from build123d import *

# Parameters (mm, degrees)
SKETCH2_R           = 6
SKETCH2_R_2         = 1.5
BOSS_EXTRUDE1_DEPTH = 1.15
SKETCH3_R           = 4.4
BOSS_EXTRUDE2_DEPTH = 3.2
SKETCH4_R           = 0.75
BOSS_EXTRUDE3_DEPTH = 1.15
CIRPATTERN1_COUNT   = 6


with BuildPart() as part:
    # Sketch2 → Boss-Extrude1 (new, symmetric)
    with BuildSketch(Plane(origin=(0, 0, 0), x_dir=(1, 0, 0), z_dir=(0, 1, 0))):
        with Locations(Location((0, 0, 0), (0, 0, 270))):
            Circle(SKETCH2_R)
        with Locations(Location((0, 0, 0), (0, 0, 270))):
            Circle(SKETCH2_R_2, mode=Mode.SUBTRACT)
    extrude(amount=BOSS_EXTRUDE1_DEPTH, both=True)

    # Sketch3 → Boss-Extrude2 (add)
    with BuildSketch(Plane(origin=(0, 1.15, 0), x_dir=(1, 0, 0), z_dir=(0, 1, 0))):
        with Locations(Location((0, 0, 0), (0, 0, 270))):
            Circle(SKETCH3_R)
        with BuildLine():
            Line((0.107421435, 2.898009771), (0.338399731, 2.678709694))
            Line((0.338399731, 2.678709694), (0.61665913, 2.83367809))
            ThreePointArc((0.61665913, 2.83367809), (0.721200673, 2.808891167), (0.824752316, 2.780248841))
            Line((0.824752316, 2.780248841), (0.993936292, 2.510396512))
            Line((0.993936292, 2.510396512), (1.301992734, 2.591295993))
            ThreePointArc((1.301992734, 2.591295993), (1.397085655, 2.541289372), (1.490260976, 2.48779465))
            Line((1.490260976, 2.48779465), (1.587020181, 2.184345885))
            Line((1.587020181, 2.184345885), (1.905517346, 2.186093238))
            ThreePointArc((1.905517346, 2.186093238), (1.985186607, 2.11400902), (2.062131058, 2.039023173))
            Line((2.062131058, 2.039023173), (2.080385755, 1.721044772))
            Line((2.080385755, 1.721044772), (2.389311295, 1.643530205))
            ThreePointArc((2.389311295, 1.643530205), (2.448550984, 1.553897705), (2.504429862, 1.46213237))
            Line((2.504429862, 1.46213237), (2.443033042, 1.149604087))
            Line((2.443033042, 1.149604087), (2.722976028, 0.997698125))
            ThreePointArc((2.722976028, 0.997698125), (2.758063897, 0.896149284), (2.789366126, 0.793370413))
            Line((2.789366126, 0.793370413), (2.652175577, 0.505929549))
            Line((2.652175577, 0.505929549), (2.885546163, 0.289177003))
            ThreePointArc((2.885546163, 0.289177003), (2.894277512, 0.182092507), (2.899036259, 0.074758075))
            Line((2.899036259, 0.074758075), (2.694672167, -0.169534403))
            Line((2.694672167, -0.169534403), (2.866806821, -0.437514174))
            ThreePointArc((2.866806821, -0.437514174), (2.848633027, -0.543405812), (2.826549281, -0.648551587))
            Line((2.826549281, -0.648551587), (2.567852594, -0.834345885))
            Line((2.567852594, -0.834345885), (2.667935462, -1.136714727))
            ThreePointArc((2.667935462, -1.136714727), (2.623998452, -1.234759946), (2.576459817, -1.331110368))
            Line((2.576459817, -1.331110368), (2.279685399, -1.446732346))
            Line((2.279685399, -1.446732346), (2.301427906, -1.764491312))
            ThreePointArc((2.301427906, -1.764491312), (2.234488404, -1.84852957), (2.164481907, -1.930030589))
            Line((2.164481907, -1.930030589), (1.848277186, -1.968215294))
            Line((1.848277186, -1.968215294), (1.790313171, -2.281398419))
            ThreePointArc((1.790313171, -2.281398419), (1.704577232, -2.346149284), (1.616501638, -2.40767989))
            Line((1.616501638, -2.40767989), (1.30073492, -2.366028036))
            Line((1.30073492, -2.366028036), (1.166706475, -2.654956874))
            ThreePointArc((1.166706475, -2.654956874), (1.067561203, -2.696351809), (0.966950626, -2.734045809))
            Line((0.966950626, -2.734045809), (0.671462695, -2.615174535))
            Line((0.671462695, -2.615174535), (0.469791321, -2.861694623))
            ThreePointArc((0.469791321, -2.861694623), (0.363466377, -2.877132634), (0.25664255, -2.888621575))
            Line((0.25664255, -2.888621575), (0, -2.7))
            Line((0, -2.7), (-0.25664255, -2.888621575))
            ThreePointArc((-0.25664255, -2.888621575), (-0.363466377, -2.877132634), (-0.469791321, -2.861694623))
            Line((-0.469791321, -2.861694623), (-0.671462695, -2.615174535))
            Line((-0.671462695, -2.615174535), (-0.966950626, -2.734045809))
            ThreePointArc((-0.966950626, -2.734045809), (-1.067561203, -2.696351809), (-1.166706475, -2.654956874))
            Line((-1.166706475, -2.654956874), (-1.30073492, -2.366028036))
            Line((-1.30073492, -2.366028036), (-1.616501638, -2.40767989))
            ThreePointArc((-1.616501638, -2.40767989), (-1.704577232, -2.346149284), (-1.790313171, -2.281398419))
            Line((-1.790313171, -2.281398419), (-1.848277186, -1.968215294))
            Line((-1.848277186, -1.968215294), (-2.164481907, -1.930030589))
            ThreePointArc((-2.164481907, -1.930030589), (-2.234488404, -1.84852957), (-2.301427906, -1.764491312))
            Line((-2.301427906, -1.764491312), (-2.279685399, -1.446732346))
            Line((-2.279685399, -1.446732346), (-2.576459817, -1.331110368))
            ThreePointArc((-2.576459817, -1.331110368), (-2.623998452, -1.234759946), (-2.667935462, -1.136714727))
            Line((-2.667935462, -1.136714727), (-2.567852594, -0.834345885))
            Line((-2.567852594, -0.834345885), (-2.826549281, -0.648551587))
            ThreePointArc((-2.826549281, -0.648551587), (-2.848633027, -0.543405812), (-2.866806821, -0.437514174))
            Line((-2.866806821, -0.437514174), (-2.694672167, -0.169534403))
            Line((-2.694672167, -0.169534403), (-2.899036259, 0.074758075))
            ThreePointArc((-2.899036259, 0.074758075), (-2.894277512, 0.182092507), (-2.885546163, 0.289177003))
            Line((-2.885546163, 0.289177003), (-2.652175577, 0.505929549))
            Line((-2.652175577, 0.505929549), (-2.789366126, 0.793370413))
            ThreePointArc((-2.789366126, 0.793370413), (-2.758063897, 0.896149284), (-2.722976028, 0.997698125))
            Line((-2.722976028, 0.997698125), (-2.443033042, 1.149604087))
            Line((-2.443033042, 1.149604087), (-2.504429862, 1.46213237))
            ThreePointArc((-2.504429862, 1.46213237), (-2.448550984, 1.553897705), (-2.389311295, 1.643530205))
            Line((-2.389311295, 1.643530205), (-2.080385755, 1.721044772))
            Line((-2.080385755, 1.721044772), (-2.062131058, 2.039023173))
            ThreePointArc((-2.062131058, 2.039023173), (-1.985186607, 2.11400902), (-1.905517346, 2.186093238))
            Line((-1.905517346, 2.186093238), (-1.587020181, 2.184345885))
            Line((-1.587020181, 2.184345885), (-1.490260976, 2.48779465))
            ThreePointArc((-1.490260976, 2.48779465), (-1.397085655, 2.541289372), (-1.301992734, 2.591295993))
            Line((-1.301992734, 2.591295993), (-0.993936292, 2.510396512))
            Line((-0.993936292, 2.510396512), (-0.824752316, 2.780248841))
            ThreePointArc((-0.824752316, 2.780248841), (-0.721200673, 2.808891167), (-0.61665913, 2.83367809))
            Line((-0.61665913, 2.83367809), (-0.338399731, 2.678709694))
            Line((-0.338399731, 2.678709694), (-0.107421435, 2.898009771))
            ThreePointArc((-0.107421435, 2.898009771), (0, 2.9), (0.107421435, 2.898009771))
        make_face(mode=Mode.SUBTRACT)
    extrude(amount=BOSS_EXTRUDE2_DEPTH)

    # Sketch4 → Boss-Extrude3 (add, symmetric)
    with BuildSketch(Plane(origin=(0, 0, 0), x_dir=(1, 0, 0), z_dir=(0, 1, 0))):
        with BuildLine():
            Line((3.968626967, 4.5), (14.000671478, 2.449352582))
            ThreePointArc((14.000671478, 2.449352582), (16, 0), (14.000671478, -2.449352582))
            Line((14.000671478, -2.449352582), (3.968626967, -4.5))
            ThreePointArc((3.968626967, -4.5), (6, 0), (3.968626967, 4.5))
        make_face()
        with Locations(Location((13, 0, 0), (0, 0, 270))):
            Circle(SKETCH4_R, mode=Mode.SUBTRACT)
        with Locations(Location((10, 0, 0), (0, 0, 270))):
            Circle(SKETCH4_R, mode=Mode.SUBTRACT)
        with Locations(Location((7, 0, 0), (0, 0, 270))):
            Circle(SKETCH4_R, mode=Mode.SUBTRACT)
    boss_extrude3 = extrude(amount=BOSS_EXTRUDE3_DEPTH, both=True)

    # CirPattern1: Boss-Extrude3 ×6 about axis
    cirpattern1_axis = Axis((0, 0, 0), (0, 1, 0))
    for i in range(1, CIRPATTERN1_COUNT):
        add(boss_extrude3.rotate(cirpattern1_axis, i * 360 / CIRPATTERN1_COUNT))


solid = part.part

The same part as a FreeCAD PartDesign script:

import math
import FreeCAD as App
import Part
import Sketcher

V = App.Vector

doc = App.newDocument("Part")
params = doc.addObject("Spreadsheet::Sheet", "Params")
for row, (alias, value) in enumerate([
    ("sketch1_diameter", "12 mm"),
    ("sketch1_diameter2", "3 mm"),
    ("pad1_length", "2.3 mm"),
    ("sketch2_diameter", "8.8 mm"),
    ("sketch2_radius", "2.899999 mm"),
    ("pad2_length", "3.2 mm"),
    ("sketch3_radius", "6 mm"),
    ("sketch3_diameter", "1.5 mm"),
    ("sketch3_radius2", "2.5 mm"),
    ("pad3_length", "2.3 mm"),
], start=1):
    params.set(f"A{row}", alias)
    params.set(f"B{row}", "=" + value)
    params.setAlias(f"B{row}", alias)

body = doc.addObject("PartDesign::Body", "Body")

# Sketch on XZ plane
sketch1 = doc.addObject("Sketcher::SketchObject", "Sketch")
body.addObject(sketch1)
sketch1.AttachmentSupport = (doc.XZ_Plane, [""])
sketch1.MapMode = "FlatFace"
sketch1.addGeometry([
    Part.Circle(V(0, 0, 0), V(0, 0, 1), 6),
    Part.Circle(V(0, 0, 0), V(0, 0, 1), 1.5),
], False)
sketch1.addConstraint([
    Sketcher.Constraint("Coincident", 0, 3, -1, 1),
    Sketcher.Constraint("Coincident", 1, 3, -1, 1),
    Sketcher.Constraint("Diameter", 0, 12.0),
    Sketcher.Constraint("Diameter", 1, 3.0),
])
sketch1.setExpression("Constraints[2]", "Params.sketch1_diameter")
sketch1.setExpression("Constraints[3]", "Params.sketch1_diameter2")
pad1 = doc.addObject("PartDesign::Pad", "Pad")
body.addObject(pad1)
pad1.Profile = sketch1
pad1.setExpression("Length", "Params.pad1_length")
pad1.Midplane = True

# Sketch on XZ plane
sketch2 = doc.addObject("Sketcher::SketchObject", "Sketch001")
body.addObject(sketch2)
sketch2.AttachmentSupport = (doc.XZ_Plane, [""])
sketch2.MapMode = "FlatFace"
sketch2.AttachmentOffset = App.Placement(V(0, 0, -1.15), App.Rotation())
sketch2.addGeometry([
    Part.Circle(V(0, 0, 0), V(0, 0, 1), 4.4),  # 0
    Part.ArcOfCircle(Part.Circle(V(0, 0, 0), V(0, 0, 1), 2.9), math.radians(-92.12), math.radians(-87.88)),  # 1
    Part.LineSegment(V(0.11, -2.9, 0), V(0.34, -2.68, 0)),  # 2
    Part.LineSegment(V(0.34, -2.68, 0), V(0.62, -2.83, 0)),  # 3
    Part.ArcOfCircle(Part.Circle(V(0, 0, 0), V(0, 0, 1), 2.9), math.radians(-77.72), math.radians(-73.48)),  # 4
    Part.LineSegment(V(0.82, -2.78, 0), V(0.99, -2.51, 0)),  # 5
    Part.LineSegment(V(0.99, -2.51, 0), V(1.3, -2.59, 0)),  # 6
    Part.ArcOfCircle(Part.Circle(V(0, 0, 0), V(0, 0, 1), 2.9), math.radians(-63.32), math.radians(-59.08)),  # 7
    Part.LineSegment(V(1.49, -2.49, 0), V(1.59, -2.18, 0)),  # 8
    Part.LineSegment(V(1.59, -2.18, 0), V(1.91, -2.19, 0)),  # 9
    Part.ArcOfCircle(Part.Circle(V(0, 0, 0), V(0, 0, 1), 2.9), math.radians(-48.92), math.radians(-44.68)),  # 10
    Part.LineSegment(V(2.06, -2.04, 0), V(2.08, -1.72, 0)),  # 11
    Part.LineSegment(V(2.08, -1.72, 0), V(2.39, -1.64, 0)),  # 12
    Part.ArcOfCircle(Part.Circle(V(0, 0, 0), V(0, 0, 1), 2.9), math.radians(-34.52), math.radians(-30.28)),  # 13
    Part.LineSegment(V(2.5, -1.46, 0), V(2.44, -1.15, 0)),  # 14
    Part.LineSegment(V(2.44, -1.15, 0), V(2.72, -1, 0)),  # 15
    Part.ArcOfCircle(Part.Circle(V(0, 0, 0), V(0, 0, 1), 2.9), math.radians(-20.12), math.radians(-15.88)),  # 16
    Part.LineSegment(V(2.79, -0.79, 0), V(2.65, -0.51, 0)),  # 17
    Part.LineSegment(V(2.65, -0.51, 0), V(2.89, -0.29, 0)),  # 18
    Part.ArcOfCircle(Part.Circle(V(0, 0, 0), V(0, 0, 1), 2.9), math.radians(-5.72), math.radians(-1.48)),  # 19
    Part.LineSegment(V(2.9, -0.07, 0), V(2.69, 0.17, 0)),  # 20
    Part.LineSegment(V(2.69, 0.17, 0), V(2.87, 0.44, 0)),  # 21
    Part.ArcOfCircle(Part.Circle(V(0, 0, 0), V(0, 0, 1), 2.9), math.radians(8.68), math.radians(12.92)),  # 22
    Part.LineSegment(V(2.83, 0.65, 0), V(2.57, 0.83, 0)),  # 23
    Part.LineSegment(V(2.57, 0.83, 0), V(2.67, 1.14, 0)),  # 24
    Part.ArcOfCircle(Part.Circle(V(0, 0, 0), V(0, 0, 1), 2.9), math.radians(23.08), math.radians(27.32)),  # 25
    Part.LineSegment(V(2.58, 1.33, 0), V(2.28, 1.45, 0)),  # 26
    Part.LineSegment(V(2.28, 1.45, 0), V(2.3, 1.76, 0)),  # 27
    Part.ArcOfCircle(Part.Circle(V(0, 0, 0), V(0, 0, 1), 2.9), math.radians(37.48), math.radians(41.72)),  # 28
    Part.LineSegment(V(2.16, 1.93, 0), V(1.85, 1.97, 0)),  # 29
    Part.LineSegment(V(1.85, 1.97, 0), V(1.79, 2.28, 0)),  # 30
    Part.ArcOfCircle(Part.Circle(V(0, 0, 0), V(0, 0, 1), 2.9), math.radians(51.88), math.radians(56.12)),  # 31
    Part.LineSegment(V(1.62, 2.41, 0), V(1.3, 2.37, 0)),  # 32
    Part.LineSegment(V(1.3, 2.37, 0), V(1.17, 2.65, 0)),  # 33
    Part.ArcOfCircle(Part.Circle(V(0, 0, 0), V(0, 0, 1), 2.9), math.radians(66.28), math.radians(70.52)),  # 34
    Part.LineSegment(V(0.97, 2.73, 0), V(0.67, 2.62, 0)),  # 35
    Part.LineSegment(V(0.67, 2.62, 0), V(0.47, 2.86, 0)),  # 36
    Part.ArcOfCircle(Part.Circle(V(0, 0, 0), V(0, 0, 1), 2.9), math.radians(80.68), math.radians(84.92)),  # 37
    Part.LineSegment(V(0.26, 2.89, 0), V(0, 2.7, 0)),  # 38
    Part.LineSegment(V(0, 2.7, 0), V(-0.26, 2.89, 0)),  # 39
    Part.ArcOfCircle(Part.Circle(V(0, 0, 0), V(0, 0, 1), 2.9), math.radians(95.08), math.radians(99.32)),  # 40
    Part.LineSegment(V(-0.47, 2.86, 0), V(-0.67, 2.62, 0)),  # 41
    Part.LineSegment(V(-0.67, 2.62, 0), V(-0.97, 2.73, 0)),  # 42
    Part.ArcOfCircle(Part.Circle(V(0, 0, 0), V(0, 0, 1), 2.9), math.radians(109.48), math.radians(113.72)),  # 43
    Part.LineSegment(V(-1.17, 2.65, 0), V(-1.3, 2.37, 0)),  # 44
    Part.LineSegment(V(-1.3, 2.37, 0), V(-1.62, 2.41, 0)),  # 45
    Part.ArcOfCircle(Part.Circle(V(0, 0, 0), V(0, 0, 1), 2.9), math.radians(123.88), math.radians(128.12)),  # 46
    Part.LineSegment(V(-1.79, 2.28, 0), V(-1.85, 1.97, 0)),  # 47
    Part.LineSegment(V(-1.85, 1.97, 0), V(-2.16, 1.93, 0)),  # 48
    Part.ArcOfCircle(Part.Circle(V(0, 0, 0), V(0, 0, 1), 2.9), math.radians(138.28), math.radians(142.52)),  # 49
    Part.LineSegment(V(-2.3, 1.76, 0), V(-2.28, 1.45, 0)),  # 50
    Part.LineSegment(V(-2.28, 1.45, 0), V(-2.58, 1.33, 0)),  # 51
    Part.ArcOfCircle(Part.Circle(V(0, 0, 0), V(0, 0, 1), 2.9), math.radians(152.68), math.radians(156.92)),  # 52
    Part.LineSegment(V(-2.67, 1.14, 0), V(-2.57, 0.83, 0)),  # 53
    Part.LineSegment(V(-2.57, 0.83, 0), V(-2.83, 0.65, 0)),  # 54
    Part.ArcOfCircle(Part.Circle(V(0, 0, 0), V(0, 0, 1), 2.9), math.radians(167.08), math.radians(171.32)),  # 55
    Part.LineSegment(V(-2.87, 0.44, 0), V(-2.69, 0.17, 0)),  # 56
    Part.LineSegment(V(-2.69, 0.17, 0), V(-2.9, -0.07, 0)),  # 57
    Part.ArcOfCircle(Part.Circle(V(0, 0, 0), V(0, 0, 1), 2.9), math.radians(-178.52), math.radians(-174.28)),  # 58
    Part.LineSegment(V(-2.89, -0.29, 0), V(-2.65, -0.51, 0)),  # 59
    Part.LineSegment(V(-2.65, -0.51, 0), V(-2.79, -0.79, 0)),  # 60
    Part.ArcOfCircle(Part.Circle(V(0, 0, 0), V(0, 0, 1), 2.9), math.radians(-164.12), math.radians(-159.88)),  # 61
    Part.LineSegment(V(-2.72, -1, 0), V(-2.44, -1.15, 0)),  # 62
    Part.LineSegment(V(-2.44, -1.15, 0), V(-2.5, -1.46, 0)),  # 63
    Part.ArcOfCircle(Part.Circle(V(0, 0, 0), V(0, 0, 1), 2.9), math.radians(-149.72), math.radians(-145.48)),  # 64
    Part.LineSegment(V(-2.39, -1.64, 0), V(-2.08, -1.72, 0)),  # 65
    Part.LineSegment(V(-2.08, -1.72, 0), V(-2.06, -2.04, 0)),  # 66
    Part.ArcOfCircle(Part.Circle(V(0, 0, 0), V(0, 0, 1), 2.9), math.radians(-135.32), math.radians(-131.08)),  # 67
    Part.LineSegment(V(-1.91, -2.19, 0), V(-1.59, -2.18, 0)),  # 68
    Part.LineSegment(V(-1.59, -2.18, 0), V(-1.49, -2.49, 0)),  # 69
    Part.ArcOfCircle(Part.Circle(V(0, 0, 0), V(0, 0, 1), 2.9), math.radians(-120.92), math.radians(-116.68)),  # 70
    Part.LineSegment(V(-1.3, -2.59, 0), V(-0.99, -2.51, 0)),  # 71
    Part.LineSegment(V(-0.99, -2.51, 0), V(-0.82, -2.78, 0)),  # 72
    Part.ArcOfCircle(Part.Circle(V(0, 0, 0), V(0, 0, 1), 2.9), math.radians(-106.52), math.radians(-102.28)),  # 73
    Part.LineSegment(V(-0.62, -2.83, 0), V(-0.34, -2.68, 0)),  # 74
    Part.LineSegment(V(-0.34, -2.68, 0), V(-0.11, -2.9, 0)),  # 75
], False)
sketch2.addConstraint([
    Sketcher.Constraint("Coincident", 1, 2, 2, 1),
    Sketcher.Constraint("Coincident", 2, 2, 3, 1),
    Sketcher.Constraint("Coincident", 3, 2, 4, 1),
    Sketcher.Constraint("Coincident", 4, 2, 5, 1),
    Sketcher.Constraint("Coincident", 5, 2, 6, 1),
    Sketcher.Constraint("Coincident", 6, 2, 7, 1),
    Sketcher.Constraint("Coincident", 7, 2, 8, 1),
    Sketcher.Constraint("Coincident", 8, 2, 9, 1),
    Sketcher.Constraint("Coincident", 9, 2, 10, 1),
    Sketcher.Constraint("Coincident", 10, 2, 11, 1),
    Sketcher.Constraint("Coincident", 11, 2, 12, 1),
    Sketcher.Constraint("Coincident", 12, 2, 13, 1),
    Sketcher.Constraint("Coincident", 13, 2, 14, 1),
    Sketcher.Constraint("Coincident", 14, 2, 15, 1),
    Sketcher.Constraint("Coincident", 15, 2, 16, 1),
    Sketcher.Constraint("Coincident", 16, 2, 17, 1),
    Sketcher.Constraint("Coincident", 17, 2, 18, 1),
    Sketcher.Constraint("Coincident", 18, 2, 19, 1),
    Sketcher.Constraint("Coincident", 19, 2, 20, 1),
    Sketcher.Constraint("Coincident", 20, 2, 21, 1),
    Sketcher.Constraint("Coincident", 21, 2, 22, 1),
    Sketcher.Constraint("Coincident", 22, 2, 23, 1),
    Sketcher.Constraint("Coincident", 23, 2, 24, 1),
    Sketcher.Constraint("Coincident", 24, 2, 25, 1),
    Sketcher.Constraint("Coincident", 25, 2, 26, 1),
    Sketcher.Constraint("Coincident", 26, 2, 27, 1),
    Sketcher.Constraint("Coincident", 27, 2, 28, 1),
    Sketcher.Constraint("Coincident", 28, 2, 29, 1),
    Sketcher.Constraint("Coincident", 29, 2, 30, 1),
    Sketcher.Constraint("Coincident", 30, 2, 31, 1),
    Sketcher.Constraint("Coincident", 31, 2, 32, 1),
    Sketcher.Constraint("Coincident", 32, 2, 33, 1),
    Sketcher.Constraint("Coincident", 33, 2, 34, 1),
    Sketcher.Constraint("Coincident", 34, 2, 35, 1),
    Sketcher.Constraint("Coincident", 35, 2, 36, 1),
    Sketcher.Constraint("Coincident", 36, 2, 37, 1),
    Sketcher.Constraint("Coincident", 37, 2, 38, 1),
    Sketcher.Constraint("Coincident", 38, 2, 39, 1),
    Sketcher.Constraint("Coincident", 39, 2, 40, 1),
    Sketcher.Constraint("Coincident", 40, 2, 41, 1),
    Sketcher.Constraint("Coincident", 41, 2, 42, 1),
    Sketcher.Constraint("Coincident", 42, 2, 43, 1),
    Sketcher.Constraint("Coincident", 43, 2, 44, 1),
    Sketcher.Constraint("Coincident", 44, 2, 45, 1),
    Sketcher.Constraint("Coincident", 45, 2, 46, 1),
    Sketcher.Constraint("Coincident", 46, 2, 47, 1),
    Sketcher.Constraint("Coincident", 47, 2, 48, 1),
    Sketcher.Constraint("Coincident", 48, 2, 49, 1),
    Sketcher.Constraint("Coincident", 49, 2, 50, 1),
    Sketcher.Constraint("Coincident", 50, 2, 51, 1),
    Sketcher.Constraint("Coincident", 51, 2, 52, 1),
    Sketcher.Constraint("Coincident", 52, 2, 53, 1),
    Sketcher.Constraint("Coincident", 53, 2, 54, 1),
    Sketcher.Constraint("Coincident", 54, 2, 55, 1),
    Sketcher.Constraint("Coincident", 55, 2, 56, 1),
    Sketcher.Constraint("Coincident", 56, 2, 57, 1),
    Sketcher.Constraint("Coincident", 57, 2, 58, 1),
    Sketcher.Constraint("Coincident", 58, 2, 59, 1),
    Sketcher.Constraint("Coincident", 59, 2, 60, 1),
    Sketcher.Constraint("Coincident", 60, 2, 61, 1),
    Sketcher.Constraint("Coincident", 61, 2, 62, 1),
    Sketcher.Constraint("Coincident", 62, 2, 63, 1),
    Sketcher.Constraint("Coincident", 63, 2, 64, 1),
    Sketcher.Constraint("Coincident", 64, 2, 65, 1),
    Sketcher.Constraint("Coincident", 65, 2, 66, 1),
    Sketcher.Constraint("Coincident", 66, 2, 67, 1),
    Sketcher.Constraint("Coincident", 67, 2, 68, 1),
    Sketcher.Constraint("Coincident", 68, 2, 69, 1),
    Sketcher.Constraint("Coincident", 69, 2, 70, 1),
    Sketcher.Constraint("Coincident", 70, 2, 71, 1),
    Sketcher.Constraint("Coincident", 71, 2, 72, 1),
    Sketcher.Constraint("Coincident", 72, 2, 73, 1),
    Sketcher.Constraint("Coincident", 73, 2, 74, 1),
    Sketcher.Constraint("Coincident", 74, 2, 75, 1),
    Sketcher.Constraint("Coincident", 75, 2, 1, 1),
    Sketcher.Constraint("Coincident", 0, 3, -1, 1),
    Sketcher.Constraint("Coincident", 1, 3, -1, 1),
    Sketcher.Constraint("Coincident", 4, 3, -1, 1),
    Sketcher.Constraint("Coincident", 7, 3, -1, 1),
    Sketcher.Constraint("Coincident", 10, 3, -1, 1),
    Sketcher.Constraint("Coincident", 13, 3, -1, 1),
    Sketcher.Constraint("Coincident", 16, 3, -1, 1),
    Sketcher.Constraint("Coincident", 19, 3, -1, 1),
    Sketcher.Constraint("Coincident", 22, 3, -1, 1),
    Sketcher.Constraint("Coincident", 25, 3, -1, 1),
    Sketcher.Constraint("Coincident", 28, 3, -1, 1),
    Sketcher.Constraint("Coincident", 31, 3, -1, 1),
    Sketcher.Constraint("Coincident", 34, 3, -1, 1),
    Sketcher.Constraint("Coincident", 37, 3, -1, 1),
    Sketcher.Constraint("Coincident", 40, 3, -1, 1),
    Sketcher.Constraint("Coincident", 43, 3, -1, 1),
    Sketcher.Constraint("Coincident", 46, 3, -1, 1),
    Sketcher.Constraint("Coincident", 49, 3, -1, 1),
    Sketcher.Constraint("Coincident", 52, 3, -1, 1),
    Sketcher.Constraint("Coincident", 55, 3, -1, 1),
    Sketcher.Constraint("Coincident", 58, 3, -1, 1),
    Sketcher.Constraint("Coincident", 61, 3, -1, 1),
    Sketcher.Constraint("Coincident", 64, 3, -1, 1),
    Sketcher.Constraint("Coincident", 67, 3, -1, 1),
    Sketcher.Constraint("Coincident", 70, 3, -1, 1),
    Sketcher.Constraint("Coincident", 73, 3, -1, 1),
    Sketcher.Constraint("Equal", 1, 4),
    Sketcher.Constraint("Equal", 4, 7),
    Sketcher.Constraint("Equal", 7, 10),
    Sketcher.Constraint("Equal", 10, 13),
    Sketcher.Constraint("Equal", 13, 16),
    Sketcher.Constraint("Equal", 16, 19),
    Sketcher.Constraint("Equal", 19, 22),
    Sketcher.Constraint("Equal", 22, 25),
    Sketcher.Constraint("Equal", 25, 28),
    Sketcher.Constraint("Equal", 28, 31),
    Sketcher.Constraint("Equal", 31, 34),
    Sketcher.Constraint("Equal", 34, 37),
    Sketcher.Constraint("Equal", 37, 40),
    Sketcher.Constraint("Equal", 40, 43),
    Sketcher.Constraint("Equal", 43, 46),
    Sketcher.Constraint("Equal", 46, 49),
    Sketcher.Constraint("Equal", 49, 52),
    Sketcher.Constraint("Equal", 52, 55),
    Sketcher.Constraint("Equal", 55, 58),
    Sketcher.Constraint("Equal", 58, 61),
    Sketcher.Constraint("Equal", 61, 64),
    Sketcher.Constraint("Equal", 64, 67),
    Sketcher.Constraint("Equal", 67, 70),
    Sketcher.Constraint("Equal", 70, 73),
    Sketcher.Constraint("Symmetric", 35, 2, 41, 2, -2),
    Sketcher.Constraint("Symmetric", 32, 2, 44, 2, -2),
    Sketcher.Constraint("Symmetric", 29, 2, 47, 2, -2),
    Sketcher.Constraint("Symmetric", 26, 2, 50, 2, -2),
    Sketcher.Constraint("Symmetric", 23, 2, 53, 2, -2),
    Sketcher.Constraint("Symmetric", 20, 2, 56, 2, -2),
    Sketcher.Constraint("Symmetric", 17, 2, 59, 2, -2),
    Sketcher.Constraint("Symmetric", 14, 2, 62, 2, -2),
    Sketcher.Constraint("Symmetric", 11, 2, 65, 2, -2),
    Sketcher.Constraint("Symmetric", 8, 2, 68, 2, -2),
    Sketcher.Constraint("Symmetric", 5, 2, 71, 2, -2),
    Sketcher.Constraint("Symmetric", 2, 2, 74, 2, -2),
    Sketcher.Constraint("PointOnObject", 38, 2, -2),
    Sketcher.Constraint("Horizontal", 37, 2, 39, 2),
    Sketcher.Constraint("Horizontal", 36, 2, 40, 2),
    Sketcher.Constraint("Horizontal", 34, 2, 42, 2),
    Sketcher.Constraint("Horizontal", 33, 2, 43, 2),
    Sketcher.Constraint("Horizontal", 31, 2, 45, 2),
    Sketcher.Constraint("Horizontal", 30, 2, 46, 2),
    Sketcher.Constraint("Horizontal", 28, 2, 48, 2),
    Sketcher.Constraint("Horizontal", 27, 2, 49, 2),
    Sketcher.Constraint("Horizontal", 25, 2, 51, 2),
    Sketcher.Constraint("Horizontal", 24, 2, 52, 2),
    Sketcher.Constraint("Horizontal", 22, 2, 54, 2),
    Sketcher.Constraint("Horizontal", 21, 2, 55, 2),
    Sketcher.Constraint("Horizontal", 19, 2, 57, 2),
    Sketcher.Constraint("Horizontal", 18, 2, 58, 2),
    Sketcher.Constraint("Horizontal", 16, 2, 60, 2),
    Sketcher.Constraint("Horizontal", 15, 2, 61, 2),
    Sketcher.Constraint("Horizontal", 13, 2, 63, 2),
    Sketcher.Constraint("Horizontal", 12, 2, 64, 2),
    Sketcher.Constraint("Horizontal", 10, 2, 66, 2),
    Sketcher.Constraint("Horizontal", 9, 2, 67, 2),
    Sketcher.Constraint("Horizontal", 7, 2, 69, 2),
    Sketcher.Constraint("Horizontal", 6, 2, 70, 2),
    Sketcher.Constraint("Horizontal", 4, 2, 72, 2),
    Sketcher.Constraint("Horizontal", 3, 2, 73, 2),
    Sketcher.Constraint("Horizontal", 1, 2, 75, 2),
    Sketcher.Constraint("Equal", 2, 3),
    Sketcher.Constraint("Equal", 3, 5),
    Sketcher.Constraint("Equal", 5, 6),
    Sketcher.Constraint("Equal", 6, 8),
    Sketcher.Constraint("Equal", 8, 9),
    Sketcher.Constraint("Equal", 9, 11),
    Sketcher.Constraint("Equal", 11, 12),
    Sketcher.Constraint("Equal", 12, 14),
    Sketcher.Constraint("Equal", 14, 15),
    Sketcher.Constraint("Equal", 15, 17),
    Sketcher.Constraint("Equal", 17, 18),
    Sketcher.Constraint("Equal", 18, 20),
    Sketcher.Constraint("Equal", 20, 21),
    Sketcher.Constraint("Equal", 21, 23),
    Sketcher.Constraint("Equal", 23, 24),
    Sketcher.Constraint("Equal", 24, 26),
    Sketcher.Constraint("Equal", 26, 27),
    Sketcher.Constraint("Equal", 27, 29),
    Sketcher.Constraint("Equal", 29, 30),
    Sketcher.Constraint("Equal", 30, 32),
    Sketcher.Constraint("Equal", 32, 33),
    Sketcher.Constraint("Equal", 33, 35),
    Sketcher.Constraint("Equal", 35, 36),
    Sketcher.Constraint("Equal", 36, 38),
    Sketcher.Constraint("Diameter", 0, 8.8),
    Sketcher.Constraint("Radius", 1, 2.899999),
    Sketcher.Constraint("DistanceY", -1, 1, 38, 2, 2.7),
    Sketcher.Constraint("Distance", 2, 0.318502),
    Sketcher.Constraint("DistanceX", -1, 1, 2, 2, 0.3384),
    Sketcher.Constraint("DistanceY", 15, 2, -1, 1, 0.997698),
    Sketcher.Constraint("DistanceY", -1, 1, 30, 2, 2.281398),
    Sketcher.Constraint("DistanceX", -1, 1, 31, 2, 1.616502),
    Sketcher.Constraint("DistanceX", -1, 1, 1, 2, 0.107421),
    Sketcher.Constraint("DistanceY", 4, 2, -1, 1, 2.780249),
    Sketcher.Constraint("DistanceX", -1, 1, 7, 2, 1.490261),
    Sketcher.Constraint("DistanceX", -1, 1, 8, 2, 1.58702),
    Sketcher.Constraint("DistanceX", -1, 1, 10, 2, 2.062131),
    Sketcher.Constraint("DistanceX", -1, 1, 12, 2, 2.389311),
    Sketcher.Constraint("DistanceX", -1, 1, 13, 2, 2.50443),
    Sketcher.Constraint("DistanceY", 16, 2, -1, 1, 0.79337),
    Sketcher.Constraint("DistanceY", 17, 2, -1, 1, 0.50593),
    Sketcher.Constraint("DistanceY", 19, 2, -1, 1, 0.074758),
    Sketcher.Constraint("DistanceX", -1, 1, 22, 2, 2.826549),
    Sketcher.Constraint("DistanceX", -1, 1, 25, 2, 2.57646),
    Sketcher.Constraint("DistanceY", -1, 1, 27, 2, 1.764491),
    Sketcher.Constraint("DistanceX", -1, 1, 28, 2, 2.164482),
    Sketcher.Constraint("DistanceY", -1, 1, 32, 2, 2.366028),
    Sketcher.Constraint("DistanceX", -1, 1, 34, 2, 0.966951),
    Sketcher.Constraint("DistanceX", -1, 1, 36, 2, 0.469791),
    Sketcher.Constraint("DistanceX", -1, 1, 5, 2, 0.993936),
    Sketcher.Constraint("DistanceX", -1, 1, 20, 2, 2.694672),
    Sketcher.Constraint("DistanceX", -1, 1, 23, 2, 2.567853),
])
sketch2.setExpression("Constraints[187]", "Params.sketch2_diameter")
sketch2.setExpression("Constraints[188]", "Params.sketch2_radius")
pad2 = doc.addObject("PartDesign::Pad", "Pad001")
body.addObject(pad2)
pad2.Profile = sketch2
pad2.setExpression("Length", "Params.pad2_length")
pad2.Reversed = True

# Sketch on XZ plane
sketch3 = doc.addObject("Sketcher::SketchObject", "Sketch002")
body.addObject(sketch3)
sketch3.AttachmentSupport = (doc.XZ_Plane, [""])
sketch3.MapMode = "FlatFace"
sketch3.addGeometry([
    Part.LineSegment(V(14, -2.4, 0), V(4, -4.5, 0)),  # 0
    Part.ArcOfCircle(Part.Circle(V(0, 0, 0), V(0, 0, 1), 6), math.radians(-49), math.radians(49)),  # 1
    Part.LineSegment(V(4, 4.5, 0), V(14, 2.4, 0)),  # 2
    Part.ArcOfCircle(Part.Circle(V(13.5, 0, 0), V(0, 0, 1), 2.5), math.radians(-78), math.radians(78)),  # 3
    Part.Circle(V(13, 0, 0), V(0, 0, 1), 0.8),  # 4
    Part.Circle(V(10, 0, 0), V(0, 0, 1), 0.8),  # 5
    Part.Circle(V(7, 0, 0), V(0, 0, 1), 0.8),  # 6
], False)
sketch3.addConstraint([
    Sketcher.Constraint("Coincident", 0, 2, 1, 1),
    Sketcher.Constraint("Coincident", 1, 2, 2, 1),
    Sketcher.Constraint("Tangent", 2, 2, 3, 2),
    Sketcher.Constraint("Tangent", 3, 1, 0, 1),
    Sketcher.Constraint("Coincident", 1, 3, -1, 1),
    Sketcher.Constraint("Equal", 4, 5),
    Sketcher.Constraint("Equal", 5, 6),
    Sketcher.Constraint("Symmetric", 2, 2, 3, 1, -1),
    Sketcher.Constraint("PointOnObject", 4, 3, -1),
    Sketcher.Constraint("PointOnObject", 5, 3, -1),
    Sketcher.Constraint("PointOnObject", 6, 3, -1),
    Sketcher.Constraint("Radius", 1, 6.0),
    Sketcher.Constraint("Diameter", 4, 1.5),
    Sketcher.Constraint("Radius", 3, 2.5),
    Sketcher.Constraint("DistanceX", -1, 1, 4, 3, 13.0),
    Sketcher.Constraint("DistanceX", -1, 1, 5, 3, 10.0),
    Sketcher.Constraint("DistanceX", -1, 1, 6, 3, 7.0),
    Sketcher.Constraint("DistanceY", 0, 2, 1, 2, 9.0),
    Sketcher.Constraint("DistanceX", -1, 1, 3, 3, 13.5),
])
sketch3.setExpression("Constraints[11]", "Params.sketch3_radius")
sketch3.setExpression("Constraints[12]", "Params.sketch3_diameter")
sketch3.setExpression("Constraints[13]", "Params.sketch3_radius2")
pad3 = doc.addObject("PartDesign::Pad", "Pad002")
body.addObject(pad3)
pad3.Profile = sketch3
pad3.setExpression("Length", "Params.pad3_length")
pad3.Midplane = True
doc.recompute()

polarpattern = doc.addObject("PartDesign::PolarPattern", "PolarPattern")
body.addObject(polarpattern)
polarpattern.Originals = [pad3]
polarpattern.Axis = (doc.Y_Axis, [""])
polarpattern.Angle = 360
polarpattern.Occurrences = 6
body.Tip = polarpattern

doc.recompute()
